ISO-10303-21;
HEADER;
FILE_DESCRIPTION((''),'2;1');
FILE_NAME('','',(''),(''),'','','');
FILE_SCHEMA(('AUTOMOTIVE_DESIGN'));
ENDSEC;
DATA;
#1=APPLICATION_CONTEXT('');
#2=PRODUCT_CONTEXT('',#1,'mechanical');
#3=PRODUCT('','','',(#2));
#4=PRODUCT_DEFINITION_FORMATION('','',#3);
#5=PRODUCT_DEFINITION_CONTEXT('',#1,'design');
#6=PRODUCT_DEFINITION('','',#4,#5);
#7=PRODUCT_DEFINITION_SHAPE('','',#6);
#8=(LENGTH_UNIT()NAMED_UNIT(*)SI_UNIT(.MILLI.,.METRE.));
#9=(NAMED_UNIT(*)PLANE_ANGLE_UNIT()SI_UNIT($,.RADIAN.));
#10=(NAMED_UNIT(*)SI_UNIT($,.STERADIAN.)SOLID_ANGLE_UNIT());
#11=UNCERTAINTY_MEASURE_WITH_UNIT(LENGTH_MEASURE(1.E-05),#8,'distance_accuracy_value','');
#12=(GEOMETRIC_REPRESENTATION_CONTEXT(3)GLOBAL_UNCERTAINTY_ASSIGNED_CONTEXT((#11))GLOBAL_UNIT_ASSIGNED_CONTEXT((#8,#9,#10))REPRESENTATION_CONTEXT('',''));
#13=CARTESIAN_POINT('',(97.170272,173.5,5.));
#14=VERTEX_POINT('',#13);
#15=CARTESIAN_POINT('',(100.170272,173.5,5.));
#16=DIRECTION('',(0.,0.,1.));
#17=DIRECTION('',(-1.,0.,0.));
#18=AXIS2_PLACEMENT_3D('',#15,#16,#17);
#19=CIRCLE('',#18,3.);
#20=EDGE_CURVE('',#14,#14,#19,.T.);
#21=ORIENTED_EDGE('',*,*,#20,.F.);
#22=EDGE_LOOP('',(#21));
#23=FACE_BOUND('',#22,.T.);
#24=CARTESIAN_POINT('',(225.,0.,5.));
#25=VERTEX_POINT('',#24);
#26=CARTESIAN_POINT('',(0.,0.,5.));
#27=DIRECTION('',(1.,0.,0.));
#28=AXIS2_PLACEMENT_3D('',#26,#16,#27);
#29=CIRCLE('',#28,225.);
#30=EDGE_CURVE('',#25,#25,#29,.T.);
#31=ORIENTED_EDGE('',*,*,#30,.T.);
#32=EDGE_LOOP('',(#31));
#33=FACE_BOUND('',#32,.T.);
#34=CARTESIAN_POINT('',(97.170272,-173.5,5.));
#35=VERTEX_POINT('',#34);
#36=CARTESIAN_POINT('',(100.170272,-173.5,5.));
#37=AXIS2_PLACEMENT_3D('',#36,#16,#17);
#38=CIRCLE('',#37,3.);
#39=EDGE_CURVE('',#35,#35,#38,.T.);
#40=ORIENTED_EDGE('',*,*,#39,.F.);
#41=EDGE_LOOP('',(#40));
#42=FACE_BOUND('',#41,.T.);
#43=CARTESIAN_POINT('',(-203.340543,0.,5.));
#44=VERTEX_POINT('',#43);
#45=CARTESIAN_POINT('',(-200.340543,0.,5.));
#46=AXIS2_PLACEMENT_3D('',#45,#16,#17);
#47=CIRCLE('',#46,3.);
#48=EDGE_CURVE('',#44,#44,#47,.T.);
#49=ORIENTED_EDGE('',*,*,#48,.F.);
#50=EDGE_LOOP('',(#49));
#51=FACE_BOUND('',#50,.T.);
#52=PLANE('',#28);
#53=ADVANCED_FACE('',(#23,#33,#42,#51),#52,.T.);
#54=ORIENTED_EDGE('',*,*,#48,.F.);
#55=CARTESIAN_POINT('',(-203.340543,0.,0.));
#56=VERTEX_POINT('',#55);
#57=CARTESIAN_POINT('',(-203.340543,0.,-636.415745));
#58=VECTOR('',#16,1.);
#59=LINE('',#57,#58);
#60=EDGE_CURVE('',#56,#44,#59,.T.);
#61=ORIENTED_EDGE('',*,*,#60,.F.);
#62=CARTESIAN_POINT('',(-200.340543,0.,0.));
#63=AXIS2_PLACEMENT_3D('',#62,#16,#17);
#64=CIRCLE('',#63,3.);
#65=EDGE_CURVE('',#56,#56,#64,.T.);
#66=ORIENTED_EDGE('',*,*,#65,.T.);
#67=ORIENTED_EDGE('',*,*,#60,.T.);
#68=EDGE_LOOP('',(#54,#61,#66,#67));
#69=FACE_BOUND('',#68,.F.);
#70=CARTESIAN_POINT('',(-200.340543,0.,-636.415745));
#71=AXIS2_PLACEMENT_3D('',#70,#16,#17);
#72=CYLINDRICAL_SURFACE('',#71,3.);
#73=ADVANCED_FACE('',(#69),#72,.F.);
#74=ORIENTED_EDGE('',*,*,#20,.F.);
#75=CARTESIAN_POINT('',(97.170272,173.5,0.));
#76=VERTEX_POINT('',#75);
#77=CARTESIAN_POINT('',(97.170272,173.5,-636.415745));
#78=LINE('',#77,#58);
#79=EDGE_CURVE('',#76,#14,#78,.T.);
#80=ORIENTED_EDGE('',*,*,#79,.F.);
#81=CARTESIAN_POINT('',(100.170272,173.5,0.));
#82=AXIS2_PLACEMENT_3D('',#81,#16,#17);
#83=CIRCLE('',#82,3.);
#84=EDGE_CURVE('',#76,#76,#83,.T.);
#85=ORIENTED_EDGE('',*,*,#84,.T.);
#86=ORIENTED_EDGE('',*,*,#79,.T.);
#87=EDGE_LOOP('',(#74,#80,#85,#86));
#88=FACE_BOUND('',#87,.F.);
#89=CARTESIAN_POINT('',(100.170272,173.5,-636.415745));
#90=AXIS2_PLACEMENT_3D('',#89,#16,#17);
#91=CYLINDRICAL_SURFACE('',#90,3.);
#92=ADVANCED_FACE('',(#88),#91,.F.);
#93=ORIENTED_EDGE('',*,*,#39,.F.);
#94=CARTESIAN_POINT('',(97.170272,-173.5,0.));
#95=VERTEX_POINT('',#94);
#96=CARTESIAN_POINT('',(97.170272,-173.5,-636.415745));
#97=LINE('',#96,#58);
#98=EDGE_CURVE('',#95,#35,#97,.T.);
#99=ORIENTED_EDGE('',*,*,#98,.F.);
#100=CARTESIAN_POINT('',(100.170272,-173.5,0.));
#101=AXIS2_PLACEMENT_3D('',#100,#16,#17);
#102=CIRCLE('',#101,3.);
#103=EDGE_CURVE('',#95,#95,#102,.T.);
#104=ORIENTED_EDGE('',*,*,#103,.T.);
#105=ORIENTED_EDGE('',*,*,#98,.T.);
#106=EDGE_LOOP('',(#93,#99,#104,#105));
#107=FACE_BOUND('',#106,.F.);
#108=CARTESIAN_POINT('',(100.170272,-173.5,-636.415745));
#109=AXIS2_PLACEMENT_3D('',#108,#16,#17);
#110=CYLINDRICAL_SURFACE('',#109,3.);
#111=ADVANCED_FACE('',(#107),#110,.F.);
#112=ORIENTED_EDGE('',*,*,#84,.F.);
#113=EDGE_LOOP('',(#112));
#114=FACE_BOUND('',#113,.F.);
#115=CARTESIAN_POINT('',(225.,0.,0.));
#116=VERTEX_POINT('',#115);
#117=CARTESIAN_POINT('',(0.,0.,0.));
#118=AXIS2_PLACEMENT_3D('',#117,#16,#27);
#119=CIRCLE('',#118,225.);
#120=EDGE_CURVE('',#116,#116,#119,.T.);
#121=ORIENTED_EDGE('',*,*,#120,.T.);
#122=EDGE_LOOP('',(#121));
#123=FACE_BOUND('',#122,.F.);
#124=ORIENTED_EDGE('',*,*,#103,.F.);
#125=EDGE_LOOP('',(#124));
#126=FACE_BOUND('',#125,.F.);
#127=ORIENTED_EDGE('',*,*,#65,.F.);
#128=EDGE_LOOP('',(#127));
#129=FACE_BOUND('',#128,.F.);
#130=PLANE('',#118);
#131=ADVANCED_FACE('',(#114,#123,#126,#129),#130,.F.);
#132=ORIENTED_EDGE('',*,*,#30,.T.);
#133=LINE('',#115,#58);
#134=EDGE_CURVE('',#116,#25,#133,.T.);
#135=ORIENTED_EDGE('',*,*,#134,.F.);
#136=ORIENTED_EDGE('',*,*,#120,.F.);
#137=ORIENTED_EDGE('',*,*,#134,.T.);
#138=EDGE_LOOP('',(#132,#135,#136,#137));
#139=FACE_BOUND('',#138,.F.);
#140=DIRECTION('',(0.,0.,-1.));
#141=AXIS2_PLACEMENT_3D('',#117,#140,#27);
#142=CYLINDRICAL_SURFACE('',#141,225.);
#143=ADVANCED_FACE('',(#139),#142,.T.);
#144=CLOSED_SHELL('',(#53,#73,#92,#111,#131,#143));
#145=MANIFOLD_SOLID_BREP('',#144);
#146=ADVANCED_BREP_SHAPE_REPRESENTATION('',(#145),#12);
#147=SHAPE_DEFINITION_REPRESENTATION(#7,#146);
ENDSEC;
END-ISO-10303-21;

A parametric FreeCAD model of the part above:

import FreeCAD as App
import Part
import Sketcher
Q = App.Units.Quantity

doc = App.newDocument("Part")
body = doc.addObject("PartDesign::Body", "Body")

sketch1 = body.newObject("Sketcher::SketchObject", "Sketch")
sketch1.AttachmentSupport = (doc.getObject("XY_Plane"), [""])
sketch1.MapMode = "FlatFace"
sketch1.addGeometry(Part.Circle(App.Vector(0, 0, 0), App.Vector(0, 0, 1), 225), False)
sketch1.addConstraint([
    Sketcher.Constraint("Coincident", 0, 3, -1, 1),
    Sketcher.Constraint("Diameter", 0, Q("450 mm")),
])
pad1 = body.newObject("PartDesign::Pad", "Pad")
pad1.Profile = sketch1
pad1.Length = 5

sketch2 = body.newObject("Sketcher::SketchObject", "Sketch001")
sketch2.AttachmentSupport = (doc.getObject("XY_Plane"), [""])
sketch2.MapMode = "FlatFace"
sketch2.addGeometry([
    Part.Circle(App.Vector(100.2, -173.5, 0), App.Vector(0, 0, 1), 3),
    Part.Circle(App.Vector(-200.3, 0, 0), App.Vector(0, 0, 1), 3),
    Part.Circle(App.Vector(100.2, 173.5, 0), App.Vector(0, 0, 1), 3),
], False)
sketch2.addConstraint([
    Sketcher.Constraint("Equal", 0, 1),
    Sketcher.Constraint("Equal", 1, 2),
    Sketcher.Constraint("Symmetric", 0, 3, 2, 3, -1),
    Sketcher.Constraint("PointOnObject", 1, 3, -1),
    Sketcher.Constraint("Diameter", 0, Q("6 mm")),
    Sketcher.Constraint("DistanceY", 0, 3, 2, 3, Q("347 mm")),
    Sketcher.Constraint("DistanceX", -1, 1, 0, 3, Q("100.170272 mm")),
    Sketcher.Constraint("DistanceX", 1, 3, -1, 1, Q("200.340543 mm")),
])
doc.recompute()
hole = body.newObject("PartDesign::Hole", "Hole")
hole.Profile = sketch2
hole.ThreadType = "None"
hole.Diameter = 6
hole.DepthType = "ThroughAll"
hole.Reversed = True

doc.recompute()
